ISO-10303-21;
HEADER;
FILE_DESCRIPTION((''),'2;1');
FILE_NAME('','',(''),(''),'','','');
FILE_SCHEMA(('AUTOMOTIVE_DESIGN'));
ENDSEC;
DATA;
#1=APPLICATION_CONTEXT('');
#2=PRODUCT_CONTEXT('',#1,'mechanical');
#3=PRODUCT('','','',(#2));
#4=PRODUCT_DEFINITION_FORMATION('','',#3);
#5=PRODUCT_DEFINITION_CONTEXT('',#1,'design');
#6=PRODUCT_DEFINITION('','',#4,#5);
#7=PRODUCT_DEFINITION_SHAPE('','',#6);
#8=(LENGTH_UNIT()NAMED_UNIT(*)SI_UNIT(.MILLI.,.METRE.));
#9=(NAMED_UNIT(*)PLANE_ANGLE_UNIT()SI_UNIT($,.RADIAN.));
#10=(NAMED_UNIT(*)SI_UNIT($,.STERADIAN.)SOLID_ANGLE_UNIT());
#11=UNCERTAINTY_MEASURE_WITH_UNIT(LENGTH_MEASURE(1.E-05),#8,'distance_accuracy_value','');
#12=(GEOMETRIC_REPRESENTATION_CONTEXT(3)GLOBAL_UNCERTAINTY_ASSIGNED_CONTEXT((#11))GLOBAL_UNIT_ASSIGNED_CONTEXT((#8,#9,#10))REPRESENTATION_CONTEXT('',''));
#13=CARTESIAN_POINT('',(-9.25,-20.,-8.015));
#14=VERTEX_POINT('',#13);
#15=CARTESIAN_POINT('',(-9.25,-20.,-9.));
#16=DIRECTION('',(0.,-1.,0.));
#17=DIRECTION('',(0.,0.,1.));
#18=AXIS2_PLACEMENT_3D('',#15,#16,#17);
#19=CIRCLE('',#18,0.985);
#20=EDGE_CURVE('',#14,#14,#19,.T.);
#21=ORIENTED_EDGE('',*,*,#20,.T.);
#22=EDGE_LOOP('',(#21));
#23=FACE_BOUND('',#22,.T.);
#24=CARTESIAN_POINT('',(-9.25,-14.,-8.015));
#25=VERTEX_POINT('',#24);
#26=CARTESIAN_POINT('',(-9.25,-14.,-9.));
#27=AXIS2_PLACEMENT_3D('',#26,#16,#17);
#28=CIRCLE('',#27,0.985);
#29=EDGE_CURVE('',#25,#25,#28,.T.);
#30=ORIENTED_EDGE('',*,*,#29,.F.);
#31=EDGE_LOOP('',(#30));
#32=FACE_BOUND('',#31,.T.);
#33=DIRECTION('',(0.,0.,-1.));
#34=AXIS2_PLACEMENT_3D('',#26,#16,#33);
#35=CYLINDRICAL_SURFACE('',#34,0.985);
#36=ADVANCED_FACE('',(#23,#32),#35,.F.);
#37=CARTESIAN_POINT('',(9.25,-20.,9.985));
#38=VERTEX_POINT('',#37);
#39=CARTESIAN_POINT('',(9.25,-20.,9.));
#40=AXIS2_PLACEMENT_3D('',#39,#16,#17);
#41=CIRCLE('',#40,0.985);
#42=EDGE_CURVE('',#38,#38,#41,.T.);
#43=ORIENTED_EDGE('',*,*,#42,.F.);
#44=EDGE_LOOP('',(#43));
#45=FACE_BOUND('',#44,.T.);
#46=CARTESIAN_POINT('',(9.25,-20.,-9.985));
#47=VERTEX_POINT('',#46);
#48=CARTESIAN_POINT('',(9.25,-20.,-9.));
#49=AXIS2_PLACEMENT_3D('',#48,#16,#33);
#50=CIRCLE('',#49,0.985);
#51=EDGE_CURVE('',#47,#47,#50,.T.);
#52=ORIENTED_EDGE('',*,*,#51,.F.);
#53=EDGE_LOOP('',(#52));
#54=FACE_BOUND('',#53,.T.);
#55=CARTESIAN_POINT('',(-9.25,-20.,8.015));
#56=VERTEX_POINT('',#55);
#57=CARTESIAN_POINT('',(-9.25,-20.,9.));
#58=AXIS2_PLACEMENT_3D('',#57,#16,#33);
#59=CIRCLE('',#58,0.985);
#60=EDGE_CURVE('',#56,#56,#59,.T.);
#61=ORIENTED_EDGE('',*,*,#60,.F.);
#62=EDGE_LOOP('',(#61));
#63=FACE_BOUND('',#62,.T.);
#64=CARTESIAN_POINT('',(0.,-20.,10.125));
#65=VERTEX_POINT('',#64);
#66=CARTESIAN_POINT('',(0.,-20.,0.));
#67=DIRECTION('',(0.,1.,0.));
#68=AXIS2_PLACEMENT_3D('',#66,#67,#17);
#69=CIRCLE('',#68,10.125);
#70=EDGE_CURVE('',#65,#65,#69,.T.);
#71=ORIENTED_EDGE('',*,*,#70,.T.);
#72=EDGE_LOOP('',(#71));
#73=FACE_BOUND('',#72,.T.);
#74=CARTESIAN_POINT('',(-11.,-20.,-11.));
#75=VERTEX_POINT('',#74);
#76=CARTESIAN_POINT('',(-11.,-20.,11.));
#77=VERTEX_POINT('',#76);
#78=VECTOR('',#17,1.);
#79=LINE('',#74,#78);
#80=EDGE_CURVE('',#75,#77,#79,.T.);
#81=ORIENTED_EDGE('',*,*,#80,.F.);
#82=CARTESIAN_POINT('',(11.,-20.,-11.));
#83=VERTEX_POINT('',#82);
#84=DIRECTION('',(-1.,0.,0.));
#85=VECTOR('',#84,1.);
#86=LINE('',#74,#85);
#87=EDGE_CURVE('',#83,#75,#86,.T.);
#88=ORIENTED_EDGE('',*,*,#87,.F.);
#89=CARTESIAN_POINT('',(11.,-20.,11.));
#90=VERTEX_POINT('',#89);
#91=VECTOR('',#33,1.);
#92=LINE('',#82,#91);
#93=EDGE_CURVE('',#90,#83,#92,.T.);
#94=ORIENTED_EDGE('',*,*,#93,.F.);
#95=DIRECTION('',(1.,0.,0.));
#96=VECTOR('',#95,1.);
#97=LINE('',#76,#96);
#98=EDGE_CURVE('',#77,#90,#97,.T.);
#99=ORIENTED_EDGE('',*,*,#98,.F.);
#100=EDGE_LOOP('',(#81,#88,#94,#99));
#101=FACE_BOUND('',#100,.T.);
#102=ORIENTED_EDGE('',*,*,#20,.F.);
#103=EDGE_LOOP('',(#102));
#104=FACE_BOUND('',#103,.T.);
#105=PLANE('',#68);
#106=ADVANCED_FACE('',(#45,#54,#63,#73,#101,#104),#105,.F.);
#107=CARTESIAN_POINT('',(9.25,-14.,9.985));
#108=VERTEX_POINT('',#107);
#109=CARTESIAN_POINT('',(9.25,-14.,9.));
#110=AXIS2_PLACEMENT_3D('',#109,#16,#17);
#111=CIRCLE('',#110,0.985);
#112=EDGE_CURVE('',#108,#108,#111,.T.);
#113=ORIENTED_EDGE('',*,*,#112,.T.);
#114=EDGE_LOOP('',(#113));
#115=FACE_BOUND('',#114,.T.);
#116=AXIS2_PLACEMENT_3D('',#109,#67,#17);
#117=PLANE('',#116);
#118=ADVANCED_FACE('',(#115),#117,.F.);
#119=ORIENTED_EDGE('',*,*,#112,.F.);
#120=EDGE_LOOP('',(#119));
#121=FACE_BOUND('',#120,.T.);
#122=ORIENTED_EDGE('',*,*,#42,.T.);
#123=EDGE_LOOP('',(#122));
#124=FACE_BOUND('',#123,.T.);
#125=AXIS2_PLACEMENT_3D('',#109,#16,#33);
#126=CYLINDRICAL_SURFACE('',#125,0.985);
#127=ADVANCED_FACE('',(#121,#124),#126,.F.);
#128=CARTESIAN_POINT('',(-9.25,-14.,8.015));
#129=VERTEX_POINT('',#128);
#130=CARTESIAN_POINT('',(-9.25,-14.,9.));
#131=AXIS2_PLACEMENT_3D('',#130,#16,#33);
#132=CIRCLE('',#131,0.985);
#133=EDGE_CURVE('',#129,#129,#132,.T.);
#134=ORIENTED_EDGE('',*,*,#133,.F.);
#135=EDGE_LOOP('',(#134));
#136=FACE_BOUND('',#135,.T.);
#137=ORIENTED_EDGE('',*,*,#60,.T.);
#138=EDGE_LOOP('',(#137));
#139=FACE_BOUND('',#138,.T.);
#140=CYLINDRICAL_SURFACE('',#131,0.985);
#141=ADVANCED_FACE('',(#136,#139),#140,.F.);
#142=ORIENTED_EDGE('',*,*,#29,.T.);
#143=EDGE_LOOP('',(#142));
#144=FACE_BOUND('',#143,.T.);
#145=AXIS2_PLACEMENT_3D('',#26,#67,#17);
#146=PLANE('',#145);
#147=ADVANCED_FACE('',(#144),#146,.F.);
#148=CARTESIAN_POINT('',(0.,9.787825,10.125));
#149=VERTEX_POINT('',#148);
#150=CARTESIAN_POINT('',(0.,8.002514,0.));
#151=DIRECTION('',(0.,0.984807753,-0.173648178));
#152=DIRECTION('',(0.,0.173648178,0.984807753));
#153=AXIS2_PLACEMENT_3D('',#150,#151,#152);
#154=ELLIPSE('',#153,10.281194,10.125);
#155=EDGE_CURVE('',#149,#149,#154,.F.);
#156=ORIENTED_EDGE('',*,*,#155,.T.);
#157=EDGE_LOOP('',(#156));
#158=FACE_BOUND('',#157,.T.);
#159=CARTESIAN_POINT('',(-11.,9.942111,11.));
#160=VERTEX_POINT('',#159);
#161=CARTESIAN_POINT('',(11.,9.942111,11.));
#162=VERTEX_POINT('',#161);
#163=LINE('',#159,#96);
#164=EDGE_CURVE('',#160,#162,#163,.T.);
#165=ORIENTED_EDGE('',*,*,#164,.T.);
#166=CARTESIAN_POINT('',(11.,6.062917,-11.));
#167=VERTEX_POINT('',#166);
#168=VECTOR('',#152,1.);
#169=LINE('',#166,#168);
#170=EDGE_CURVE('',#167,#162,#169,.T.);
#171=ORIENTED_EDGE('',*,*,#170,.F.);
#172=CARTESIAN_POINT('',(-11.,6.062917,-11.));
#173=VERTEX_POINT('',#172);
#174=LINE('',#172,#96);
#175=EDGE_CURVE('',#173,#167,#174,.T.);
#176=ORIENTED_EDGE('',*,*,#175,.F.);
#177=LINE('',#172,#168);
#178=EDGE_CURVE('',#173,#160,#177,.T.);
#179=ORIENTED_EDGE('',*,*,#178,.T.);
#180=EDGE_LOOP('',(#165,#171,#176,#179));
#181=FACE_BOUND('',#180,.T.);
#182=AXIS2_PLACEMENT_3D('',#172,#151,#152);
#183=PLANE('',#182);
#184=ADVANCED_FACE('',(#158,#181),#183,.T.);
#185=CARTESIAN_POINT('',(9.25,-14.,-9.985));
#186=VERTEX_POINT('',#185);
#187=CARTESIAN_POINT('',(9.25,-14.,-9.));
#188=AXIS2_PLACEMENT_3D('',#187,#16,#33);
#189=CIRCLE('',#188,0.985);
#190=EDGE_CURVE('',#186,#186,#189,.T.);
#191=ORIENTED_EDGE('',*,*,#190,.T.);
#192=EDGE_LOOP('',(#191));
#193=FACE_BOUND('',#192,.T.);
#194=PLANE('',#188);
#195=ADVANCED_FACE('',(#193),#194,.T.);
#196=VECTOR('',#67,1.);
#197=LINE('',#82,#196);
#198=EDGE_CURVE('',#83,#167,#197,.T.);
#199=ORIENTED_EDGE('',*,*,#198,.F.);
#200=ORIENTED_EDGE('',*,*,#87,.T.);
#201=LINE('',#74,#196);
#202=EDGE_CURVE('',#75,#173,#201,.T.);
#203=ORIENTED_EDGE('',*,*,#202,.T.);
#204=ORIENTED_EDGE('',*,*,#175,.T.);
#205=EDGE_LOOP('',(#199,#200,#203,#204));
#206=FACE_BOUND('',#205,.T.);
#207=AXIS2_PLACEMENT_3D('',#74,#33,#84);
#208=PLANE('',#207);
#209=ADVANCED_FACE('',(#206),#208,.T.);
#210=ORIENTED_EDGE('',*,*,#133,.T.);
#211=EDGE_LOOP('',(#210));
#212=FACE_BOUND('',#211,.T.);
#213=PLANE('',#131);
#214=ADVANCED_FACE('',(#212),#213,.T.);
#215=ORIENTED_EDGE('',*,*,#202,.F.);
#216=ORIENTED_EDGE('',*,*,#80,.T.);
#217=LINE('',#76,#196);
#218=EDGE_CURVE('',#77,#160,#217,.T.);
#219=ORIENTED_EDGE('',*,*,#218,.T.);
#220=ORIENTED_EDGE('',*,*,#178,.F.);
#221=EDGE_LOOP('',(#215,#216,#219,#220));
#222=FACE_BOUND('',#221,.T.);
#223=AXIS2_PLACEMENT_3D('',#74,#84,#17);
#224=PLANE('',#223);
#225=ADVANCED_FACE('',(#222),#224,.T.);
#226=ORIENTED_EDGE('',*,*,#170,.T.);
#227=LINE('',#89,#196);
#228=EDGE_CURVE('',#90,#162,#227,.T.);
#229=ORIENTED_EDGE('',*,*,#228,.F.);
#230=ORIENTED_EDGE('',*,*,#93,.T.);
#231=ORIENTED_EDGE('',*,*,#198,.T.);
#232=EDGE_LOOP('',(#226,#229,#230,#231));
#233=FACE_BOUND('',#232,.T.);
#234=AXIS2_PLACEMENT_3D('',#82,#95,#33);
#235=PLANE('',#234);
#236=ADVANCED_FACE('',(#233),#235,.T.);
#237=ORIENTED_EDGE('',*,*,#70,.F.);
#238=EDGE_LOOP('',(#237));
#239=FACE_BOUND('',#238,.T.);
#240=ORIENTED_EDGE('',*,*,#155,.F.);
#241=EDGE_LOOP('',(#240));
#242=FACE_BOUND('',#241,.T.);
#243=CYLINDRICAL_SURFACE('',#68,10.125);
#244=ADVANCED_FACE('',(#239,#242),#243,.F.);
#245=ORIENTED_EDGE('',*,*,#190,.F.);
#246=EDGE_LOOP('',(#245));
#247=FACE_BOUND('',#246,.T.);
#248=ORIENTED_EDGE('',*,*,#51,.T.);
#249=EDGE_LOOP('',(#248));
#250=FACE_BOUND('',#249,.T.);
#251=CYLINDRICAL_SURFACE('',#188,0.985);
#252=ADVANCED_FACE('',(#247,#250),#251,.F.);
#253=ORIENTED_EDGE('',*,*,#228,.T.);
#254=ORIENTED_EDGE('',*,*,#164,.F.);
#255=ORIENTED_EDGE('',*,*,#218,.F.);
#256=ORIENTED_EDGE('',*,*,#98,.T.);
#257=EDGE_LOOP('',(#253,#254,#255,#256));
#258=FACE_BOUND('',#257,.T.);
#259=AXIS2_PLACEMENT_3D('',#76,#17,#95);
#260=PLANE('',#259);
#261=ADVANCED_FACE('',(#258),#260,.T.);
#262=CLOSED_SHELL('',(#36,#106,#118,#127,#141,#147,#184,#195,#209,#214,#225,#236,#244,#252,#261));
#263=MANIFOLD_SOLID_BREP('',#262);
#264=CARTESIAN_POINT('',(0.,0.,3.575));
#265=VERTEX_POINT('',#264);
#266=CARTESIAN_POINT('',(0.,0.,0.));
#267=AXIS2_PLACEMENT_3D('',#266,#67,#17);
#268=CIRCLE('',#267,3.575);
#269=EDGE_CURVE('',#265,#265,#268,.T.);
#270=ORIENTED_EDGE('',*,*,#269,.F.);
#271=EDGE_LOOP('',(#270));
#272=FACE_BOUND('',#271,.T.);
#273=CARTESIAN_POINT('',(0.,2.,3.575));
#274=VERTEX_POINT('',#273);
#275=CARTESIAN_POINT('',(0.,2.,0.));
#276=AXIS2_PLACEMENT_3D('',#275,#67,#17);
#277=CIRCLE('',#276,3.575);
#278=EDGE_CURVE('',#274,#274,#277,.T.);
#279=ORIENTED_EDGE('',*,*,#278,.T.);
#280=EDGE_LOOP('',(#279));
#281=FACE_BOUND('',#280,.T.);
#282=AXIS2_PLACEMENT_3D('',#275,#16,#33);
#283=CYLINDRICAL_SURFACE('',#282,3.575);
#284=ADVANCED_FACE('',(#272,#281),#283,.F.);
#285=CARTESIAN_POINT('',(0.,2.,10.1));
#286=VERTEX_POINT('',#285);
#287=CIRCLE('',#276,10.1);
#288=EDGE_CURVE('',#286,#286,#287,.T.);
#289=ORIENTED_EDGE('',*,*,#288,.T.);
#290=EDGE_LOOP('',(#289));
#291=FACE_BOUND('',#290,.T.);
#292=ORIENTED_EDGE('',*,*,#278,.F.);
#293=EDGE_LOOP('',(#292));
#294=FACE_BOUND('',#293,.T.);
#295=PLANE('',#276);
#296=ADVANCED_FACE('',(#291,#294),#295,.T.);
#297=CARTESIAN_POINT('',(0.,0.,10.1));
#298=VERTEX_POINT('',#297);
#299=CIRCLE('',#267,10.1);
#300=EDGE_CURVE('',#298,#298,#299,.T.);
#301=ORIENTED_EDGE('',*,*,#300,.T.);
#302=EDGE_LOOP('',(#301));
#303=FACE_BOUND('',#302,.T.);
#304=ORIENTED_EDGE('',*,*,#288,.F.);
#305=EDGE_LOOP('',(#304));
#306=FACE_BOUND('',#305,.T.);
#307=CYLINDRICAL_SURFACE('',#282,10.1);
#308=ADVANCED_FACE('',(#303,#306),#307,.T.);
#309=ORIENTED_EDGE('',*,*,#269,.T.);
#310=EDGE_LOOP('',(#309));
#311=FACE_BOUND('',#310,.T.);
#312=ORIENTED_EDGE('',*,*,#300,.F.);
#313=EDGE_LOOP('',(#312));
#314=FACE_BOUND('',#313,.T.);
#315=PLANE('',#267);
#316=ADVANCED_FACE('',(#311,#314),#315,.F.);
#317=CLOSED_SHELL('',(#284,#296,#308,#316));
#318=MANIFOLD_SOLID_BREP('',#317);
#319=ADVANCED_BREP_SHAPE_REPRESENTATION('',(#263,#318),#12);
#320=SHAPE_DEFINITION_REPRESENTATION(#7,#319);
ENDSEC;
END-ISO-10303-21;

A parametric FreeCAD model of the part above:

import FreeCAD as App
import Part
import Sketcher
Q = App.Units.Quantity

doc = App.newDocument("Part")
body = doc.addObject("PartDesign::Body", "Body")

sketch1 = doc.addObject("Sketcher::SketchObject", "Sketch")
body.addObject(sketch1)
sketch1.AttachmentSupport = (doc.XZ_Plane, [""])
sketch1.MapMode = "FlatFace"
sketch1.addGeometry([
    Part.Circle(App.Vector(0, 0, 0), App.Vector(0, 0, 1), 10.1),
    Part.Circle(App.Vector(0, 0, 0), App.Vector(0, 0, 1), 3.6),
], False)
sketch1.addConstraint([
    Sketcher.Constraint("Coincident", 0, 3, -1, 1),
    Sketcher.Constraint("Coincident", 1, 3, -1, 1),
    Sketcher.Constraint("Diameter", 0, Q("20.2 mm")),
    Sketcher.Constraint("Diameter", 1, Q("7.15 mm")),
])
pad1 = doc.addObject("PartDesign::Pad", "Pad")
body.addObject(pad1)
pad1.Profile = sketch1
pad1.Length = 2
pad1.Reversed = True
body2 = doc.addObject("PartDesign::Body", "Body001")

sketch2 = doc.addObject("Sketcher::SketchObject", "Sketch001")
body2.addObject(sketch2)
sketch2.AttachmentSupport = (doc.getObject("XZ_Plane001"), [""])
sketch2.MapMode = "FlatFace"
sketch2.AttachmentOffset = App.Placement(App.Vector(0, 0, -2), App.Rotation())
sketch2.addGeometry([
    Part.LineSegment(App.Vector(-11, -11, 0), App.Vector(-11, 11, 0)),
    Part.LineSegment(App.Vector(-11, 11, 0), App.Vector(11, 11, 0)),
    Part.LineSegment(App.Vector(11, 11, 0), App.Vector(11, -11, 0)),
    Part.LineSegment(App.Vector(11, -11, 0), App.Vector(-11, -11, 0)),
    Part.Circle(App.Vector(0, 0, 0), App.Vector(0, 0, 1), 10),
], False)
sketch2.addConstraint([
    Sketcher.Constraint("Coincident", 0, 2, 1, 1),
    Sketcher.Constraint("Coincident", 1, 2, 2, 1),
    Sketcher.Constraint("Coincident", 2, 2, 3, 1),
    Sketcher.Constraint("Coincident", 3, 2, 0, 1),
    Sketcher.Constraint("Vertical", 0),
    Sketcher.Constraint("Horizontal", 1),
    Sketcher.Constraint("Vertical", 2),
    Sketcher.Constraint("Horizontal", 3),
    Sketcher.Constraint("Coincident", 4, 3, -1, 1),
    Sketcher.Constraint("Symmetric", 0, 2, 2, 2, -1, 1),
    Sketcher.Constraint("Equal", 3, 0),
    Sketcher.Constraint("Diameter", 4, Q("20.25 mm")),
    Sketcher.Constraint("DistanceX", 1, 1, 1, 2, Q("22 mm")),
])
pad2 = doc.addObject("PartDesign::Pad", "Pad001")
body2.addObject(pad2)
pad2.Profile = sketch2
pad2.Type = "TwoLengths"
pad2.Length = 8
pad2.Length2 = 22
pad2.Reversed = True

sketch3 = doc.addObject("Sketcher::SketchObject", "Sketch002")
body2.addObject(sketch3)
sketch3.AttachmentSupport = (doc.getObject("XZ_Plane001"), [""])
sketch3.MapMode = "FlatFace"
sketch3.AttachmentOffset = App.Placement(App.Vector(0, 0, 20), App.Rotation())
sketch3.addGeometry([
    Part.Circle(App.Vector(-9.2, 9, 0), App.Vector(0, 0, 1), 1),
    Part.Circle(App.Vector(-9.2, -9, 0), App.Vector(0, 0, 1), 1),
    Part.Circle(App.Vector(9.2, -9, 0), App.Vector(0, 0, 1), 1),
    Part.Circle(App.Vector(9.2, 9, 0), App.Vector(0, 0, 1), 1),
], False)
sketch3.addConstraint([
    Sketcher.Constraint("Equal", 0, 1),
    Sketcher.Constraint("Equal", 1, 2),
    Sketcher.Constraint("Equal", 2, 3),
    Sketcher.Constraint("Symmetric", 0, 3, 2, 3, -1, 1),
    Sketcher.Constraint("Symmetric", 1, 3, 3, 3, -1, 1),
    Sketcher.Constraint("Symmetric", 1, 3, 2, 3, -2),
    Sketcher.Constraint("Diameter", 0, Q("1.97 mm")),
    Sketcher.Constraint("DistanceY", -1, 1, 0, 3, Q("9 mm")),
    Sketcher.Constraint("DistanceX", 1, 3, 2, 3, Q("18.5 mm")),
])
pocket1 = doc.addObject("PartDesign::Pocket", "Pocket")
body2.addObject(pocket1)
pocket1.Profile = sketch3
pocket1.Length = 6

sketch4 = doc.addObject("Sketcher::SketchObject", "Sketch003")
body2.addObject(sketch4)
sketch4.AttachmentSupport = (doc.getObject("YZ_Plane001"), [""])
sketch4.MapMode = "FlatFace"
sketch4.AttachmentOffset = App.Placement(App.Vector(0, 0, 11), App.Rotation())
sketch4.addGeometry([
    Part.LineSegment(App.Vector(9.94, 11, 0), App.Vector(6.06, -11, 0)),
    Part.LineSegment(App.Vector(6.06, -11, 0), App.Vector(10, -11, 0)),
    Part.LineSegment(App.Vector(10, -11, 0), App.Vector(10, 11, 0)),
    Part.LineSegment(App.Vector(10, 11, 0), App.Vector(9.94, 11, 0)),
], False)
sketch4.addConstraint([
    Sketcher.Constraint("Coincident", 0, 2, 1, 1),
    Sketcher.Constraint("Coincident", 1, 2, 2, 1),
    Sketcher.Constraint("Coincident", 2, 2, 3, 1),
    Sketcher.Constraint("Coincident", 3, 2, 0, 1),
    Sketcher.Constraint("Horizontal", 1),
    Sketcher.Constraint("Vertical", 2),
    Sketcher.Constraint("Horizontal", 3),
    Sketcher.Constraint("DistanceY", 2, 1, 2, 2, Q("22 mm")),
    Sketcher.Constraint("Angle", 0, Q("-100 deg")),
    Sketcher.Constraint("DistanceY", 0, 2, -1, 1, Q("11 mm")),
    Sketcher.Constraint("DistanceX", -1, 1, 1, 2, Q("10 mm")),
    Sketcher.Constraint("DistanceX", 3, 2, 3, 1, Q("0.057889 mm")),
])
pocket2 = doc.addObject("PartDesign::Pocket", "Pocket001")
body2.addObject(pocket2)
pocket2.Profile = sketch4
pocket2.Type = "ThroughAll"

doc.recompute()
